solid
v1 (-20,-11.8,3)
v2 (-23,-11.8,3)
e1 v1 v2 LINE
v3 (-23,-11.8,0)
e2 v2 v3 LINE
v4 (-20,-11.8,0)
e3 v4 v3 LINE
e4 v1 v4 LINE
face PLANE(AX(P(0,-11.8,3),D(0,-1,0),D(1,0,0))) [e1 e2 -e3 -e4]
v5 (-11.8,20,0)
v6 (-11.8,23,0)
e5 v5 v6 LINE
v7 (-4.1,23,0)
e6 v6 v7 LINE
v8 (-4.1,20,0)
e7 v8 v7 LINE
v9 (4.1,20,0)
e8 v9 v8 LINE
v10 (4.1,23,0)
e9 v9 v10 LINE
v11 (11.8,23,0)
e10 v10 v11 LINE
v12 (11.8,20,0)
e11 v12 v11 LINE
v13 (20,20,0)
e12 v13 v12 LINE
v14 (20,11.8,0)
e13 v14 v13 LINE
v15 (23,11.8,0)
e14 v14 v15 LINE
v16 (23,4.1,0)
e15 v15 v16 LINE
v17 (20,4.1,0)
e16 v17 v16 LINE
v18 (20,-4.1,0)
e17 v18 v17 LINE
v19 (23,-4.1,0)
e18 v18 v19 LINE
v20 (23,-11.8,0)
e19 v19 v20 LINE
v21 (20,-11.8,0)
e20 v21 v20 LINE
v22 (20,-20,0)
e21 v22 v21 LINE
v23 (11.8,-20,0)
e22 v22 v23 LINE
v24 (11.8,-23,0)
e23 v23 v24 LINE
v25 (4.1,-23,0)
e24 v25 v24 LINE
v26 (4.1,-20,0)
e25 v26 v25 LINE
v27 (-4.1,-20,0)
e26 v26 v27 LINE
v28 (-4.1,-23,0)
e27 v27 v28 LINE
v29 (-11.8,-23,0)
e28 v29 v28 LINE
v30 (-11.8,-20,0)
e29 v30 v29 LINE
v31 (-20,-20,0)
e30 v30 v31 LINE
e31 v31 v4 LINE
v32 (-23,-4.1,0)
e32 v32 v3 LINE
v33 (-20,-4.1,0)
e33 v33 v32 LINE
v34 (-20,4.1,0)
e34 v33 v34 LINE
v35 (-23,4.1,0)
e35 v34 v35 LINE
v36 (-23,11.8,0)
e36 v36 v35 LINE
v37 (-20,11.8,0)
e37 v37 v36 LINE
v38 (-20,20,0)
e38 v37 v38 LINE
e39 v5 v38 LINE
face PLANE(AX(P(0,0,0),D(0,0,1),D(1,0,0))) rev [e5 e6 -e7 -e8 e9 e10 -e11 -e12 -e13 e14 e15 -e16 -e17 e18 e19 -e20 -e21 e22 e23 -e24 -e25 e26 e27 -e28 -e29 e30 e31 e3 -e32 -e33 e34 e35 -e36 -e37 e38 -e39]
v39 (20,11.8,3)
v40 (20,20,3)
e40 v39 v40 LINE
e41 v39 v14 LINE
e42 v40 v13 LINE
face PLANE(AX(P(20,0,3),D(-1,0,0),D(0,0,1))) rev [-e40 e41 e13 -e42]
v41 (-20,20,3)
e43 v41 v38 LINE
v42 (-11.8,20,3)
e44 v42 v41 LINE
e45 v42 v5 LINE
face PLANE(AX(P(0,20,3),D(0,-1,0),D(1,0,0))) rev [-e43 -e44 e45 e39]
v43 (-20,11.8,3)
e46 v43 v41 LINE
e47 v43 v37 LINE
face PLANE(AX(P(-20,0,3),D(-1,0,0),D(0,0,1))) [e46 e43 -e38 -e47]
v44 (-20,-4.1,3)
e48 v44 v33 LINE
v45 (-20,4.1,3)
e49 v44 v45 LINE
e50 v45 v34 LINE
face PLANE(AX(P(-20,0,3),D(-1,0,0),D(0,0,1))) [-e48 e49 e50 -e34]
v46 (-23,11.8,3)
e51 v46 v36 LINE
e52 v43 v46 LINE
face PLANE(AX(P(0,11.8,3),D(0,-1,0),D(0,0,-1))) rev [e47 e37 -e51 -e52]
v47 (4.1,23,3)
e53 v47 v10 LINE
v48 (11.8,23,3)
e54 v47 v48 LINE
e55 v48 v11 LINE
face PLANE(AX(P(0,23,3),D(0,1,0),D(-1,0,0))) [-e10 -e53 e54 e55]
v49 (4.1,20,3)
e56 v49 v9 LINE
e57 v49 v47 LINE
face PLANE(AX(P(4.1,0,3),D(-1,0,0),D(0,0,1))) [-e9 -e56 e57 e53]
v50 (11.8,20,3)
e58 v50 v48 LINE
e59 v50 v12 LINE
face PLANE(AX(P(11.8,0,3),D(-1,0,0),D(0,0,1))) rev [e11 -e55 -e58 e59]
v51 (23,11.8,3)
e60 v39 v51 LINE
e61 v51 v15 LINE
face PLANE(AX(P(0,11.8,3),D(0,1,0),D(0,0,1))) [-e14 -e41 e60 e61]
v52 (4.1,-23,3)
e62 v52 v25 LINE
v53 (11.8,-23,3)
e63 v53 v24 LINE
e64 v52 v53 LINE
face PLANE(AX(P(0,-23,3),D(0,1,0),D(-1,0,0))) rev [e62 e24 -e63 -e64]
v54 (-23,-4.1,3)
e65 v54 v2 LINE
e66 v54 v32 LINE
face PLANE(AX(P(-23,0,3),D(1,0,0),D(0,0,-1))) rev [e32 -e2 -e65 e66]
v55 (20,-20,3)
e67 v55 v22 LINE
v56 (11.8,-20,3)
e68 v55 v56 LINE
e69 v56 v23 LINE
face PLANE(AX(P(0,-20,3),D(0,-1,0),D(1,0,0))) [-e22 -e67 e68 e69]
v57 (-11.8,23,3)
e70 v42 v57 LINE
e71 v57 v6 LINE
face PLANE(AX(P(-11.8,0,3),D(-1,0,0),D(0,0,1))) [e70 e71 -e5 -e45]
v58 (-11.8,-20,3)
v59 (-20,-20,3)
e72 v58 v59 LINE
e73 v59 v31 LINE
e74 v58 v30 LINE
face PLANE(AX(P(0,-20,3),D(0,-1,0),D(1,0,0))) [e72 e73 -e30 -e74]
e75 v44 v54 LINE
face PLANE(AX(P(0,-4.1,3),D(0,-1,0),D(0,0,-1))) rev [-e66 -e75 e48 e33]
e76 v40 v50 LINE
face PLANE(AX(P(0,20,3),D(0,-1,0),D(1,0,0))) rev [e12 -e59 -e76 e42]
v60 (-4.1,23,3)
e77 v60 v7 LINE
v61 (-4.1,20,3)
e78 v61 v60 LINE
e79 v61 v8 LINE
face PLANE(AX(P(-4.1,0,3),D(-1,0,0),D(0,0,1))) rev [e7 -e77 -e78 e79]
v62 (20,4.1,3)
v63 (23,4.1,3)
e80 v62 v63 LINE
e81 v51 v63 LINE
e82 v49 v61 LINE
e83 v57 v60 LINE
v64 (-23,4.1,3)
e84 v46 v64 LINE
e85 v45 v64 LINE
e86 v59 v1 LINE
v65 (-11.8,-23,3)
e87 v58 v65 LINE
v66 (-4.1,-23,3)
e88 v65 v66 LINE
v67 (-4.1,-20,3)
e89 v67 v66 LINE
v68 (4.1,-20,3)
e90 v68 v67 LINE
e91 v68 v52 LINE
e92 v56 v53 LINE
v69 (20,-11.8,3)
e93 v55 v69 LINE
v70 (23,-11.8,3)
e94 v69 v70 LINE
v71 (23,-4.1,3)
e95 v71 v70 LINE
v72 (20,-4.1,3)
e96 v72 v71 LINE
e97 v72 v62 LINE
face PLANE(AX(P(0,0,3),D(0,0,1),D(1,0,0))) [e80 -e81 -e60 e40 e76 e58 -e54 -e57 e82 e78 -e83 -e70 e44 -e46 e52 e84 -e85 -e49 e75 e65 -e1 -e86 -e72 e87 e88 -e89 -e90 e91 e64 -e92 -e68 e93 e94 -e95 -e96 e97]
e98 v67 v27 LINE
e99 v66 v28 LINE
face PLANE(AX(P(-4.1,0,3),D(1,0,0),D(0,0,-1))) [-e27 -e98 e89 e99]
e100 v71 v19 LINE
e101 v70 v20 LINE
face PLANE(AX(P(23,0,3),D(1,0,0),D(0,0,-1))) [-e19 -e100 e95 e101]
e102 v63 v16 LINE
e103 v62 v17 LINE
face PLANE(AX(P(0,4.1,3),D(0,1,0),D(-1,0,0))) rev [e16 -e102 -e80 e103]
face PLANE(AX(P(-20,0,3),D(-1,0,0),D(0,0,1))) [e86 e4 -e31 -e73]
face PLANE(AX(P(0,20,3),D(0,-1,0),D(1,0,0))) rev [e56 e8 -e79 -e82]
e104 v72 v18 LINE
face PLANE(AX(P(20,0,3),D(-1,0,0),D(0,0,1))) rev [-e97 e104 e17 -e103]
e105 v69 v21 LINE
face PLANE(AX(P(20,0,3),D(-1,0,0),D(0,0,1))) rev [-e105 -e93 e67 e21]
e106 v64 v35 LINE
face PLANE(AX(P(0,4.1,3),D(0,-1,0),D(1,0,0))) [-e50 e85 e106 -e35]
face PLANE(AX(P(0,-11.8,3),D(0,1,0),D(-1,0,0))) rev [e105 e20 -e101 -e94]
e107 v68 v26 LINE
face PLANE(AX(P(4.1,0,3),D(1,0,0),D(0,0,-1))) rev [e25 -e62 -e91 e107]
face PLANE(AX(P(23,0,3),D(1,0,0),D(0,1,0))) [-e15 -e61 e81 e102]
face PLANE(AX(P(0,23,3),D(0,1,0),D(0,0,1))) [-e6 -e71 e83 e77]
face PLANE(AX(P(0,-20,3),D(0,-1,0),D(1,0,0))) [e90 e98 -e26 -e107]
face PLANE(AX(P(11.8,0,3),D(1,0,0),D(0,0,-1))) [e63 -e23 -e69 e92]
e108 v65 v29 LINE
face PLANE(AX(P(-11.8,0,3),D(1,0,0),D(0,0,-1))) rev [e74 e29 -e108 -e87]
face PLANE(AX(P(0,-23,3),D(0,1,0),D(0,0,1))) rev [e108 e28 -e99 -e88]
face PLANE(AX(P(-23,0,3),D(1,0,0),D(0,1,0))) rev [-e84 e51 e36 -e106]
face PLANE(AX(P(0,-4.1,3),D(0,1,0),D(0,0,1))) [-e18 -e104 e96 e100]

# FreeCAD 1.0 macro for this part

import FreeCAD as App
import Part
import Sketcher
from FreeCAD import Vector
Q = App.Units.Quantity

doc = App.newDocument("Part")
body = doc.addObject("PartDesign::Body", "Body")

sketch1 = body.newObject("Sketcher::SketchObject", "Sketch")
sketch1.AttachmentSupport = (doc.getObject("XY_Plane"), [""])
sketch1.MapMode = "FlatFace"
sketch1.addGeometry([
    Part.LineSegment(Vector(-23, -4.1, 0), Vector(-23, -11.8, 0)),
    Part.LineSegment(Vector(-23, -11.8, 0), Vector(-20, -11.8, 0)),
    Part.LineSegment(Vector(-20, -11.8, 0), Vector(-20, -20, 0)),
    Part.LineSegment(Vector(-20, -20, 0), Vector(-11.8, -20, 0)),
    Part.LineSegment(Vector(-11.8, -20, 0), Vector(-11.8, -23, 0)),
    Part.LineSegment(Vector(-11.8, -23, 0), Vector(-4.1, -23, 0)),
    Part.LineSegment(Vector(-4.1, -23, 0), Vector(-4.1, -20, 0)),
    Part.LineSegment(Vector(-4.1, -20, 0), Vector(4.1, -20, 0)),
    Part.LineSegment(Vector(4.1, -20, 0), Vector(4.1, -23, 0)),
    Part.LineSegment(Vector(4.1, -23, 0), Vector(11.8, -23, 0)),
    Part.LineSegment(Vector(11.8, -23, 0), Vector(11.8, -20, 0)),
    Part.LineSegment(Vector(11.8, -20, 0), Vector(20, -20, 0)),
    Part.LineSegment(Vector(20, -20, 0), Vector(20, -11.8, 0)),
    Part.LineSegment(Vector(20, -11.8, 0), Vector(23, -11.8, 0)),
    Part.LineSegment(Vector(23, -11.8, 0), Vector(23, -4.1, 0)),
    Part.LineSegment(Vector(23, -4.1, 0), Vector(20, -4.1, 0)),
    Part.LineSegment(Vector(20, -4.1, 0), Vector(20, 4.1, 0)),
    Part.LineSegment(Vector(20, 4.1, 0), Vector(23, 4.1, 0)),
    Part.LineSegment(Vector(23, 4.1, 0), Vector(23, 11.8, 0)),
    Part.LineSegment(Vector(23, 11.8, 0), Vector(20, 11.8, 0)),
    Part.LineSegment(Vector(20, 11.8, 0), Vector(20, 20, 0)),
    Part.LineSegment(Vector(20, 20, 0), Vector(11.8, 20, 0)),
    Part.LineSegment(Vector(11.8, 20, 0), Vector(11.8, 23, 0)),
    Part.LineSegment(Vector(11.8, 23, 0), Vector(4.1, 23, 0)),
    Part.LineSegment(Vector(4.1, 23, 0), Vector(4.1, 20, 0)),
    Part.LineSegment(Vector(4.1, 20, 0), Vector(-4.1, 20, 0)),
    Part.LineSegment(Vector(-4.1, 20, 0), Vector(-4.1, 23, 0)),
    Part.LineSegment(Vector(-4.1, 23, 0), Vector(-11.8, 23, 0)),
    Part.LineSegment(Vector(-11.8, 23, 0), Vector(-11.8, 20, 0)),
    Part.LineSegment(Vector(-11.8, 20, 0), Vector(-20, 20, 0)),
    Part.LineSegment(Vector(-20, 20, 0), Vector(-20, 11.8, 0)),
    Part.LineSegment(Vector(-20, 11.8, 0), Vector(-23, 11.8, 0)),
    Part.LineSegment(Vector(-23, 11.8, 0), Vector(-23, 4.1, 0)),
    Part.LineSegment(Vector(-23, 4.1, 0), Vector(-20, 4.1, 0)),
    Part.LineSegment(Vector(-20, 4.1, 0), Vector(-20, -4.1, 0)),
    Part.LineSegment(Vector(-20, -4.1, 0), Vector(-23, -4.1, 0)),
], False)
sketch1.addConstraint([
    Sketcher.Constraint("Coincident", 0, 2, 1, 1),
    Sketcher.Constraint("Coincident", 1, 2, 2, 1),
    Sketcher.Constraint("Coincident", 2, 2, 3, 1),
    Sketcher.Constraint("Coincident", 3, 2, 4, 1),
    Sketcher.Constraint("Coincident", 4, 2, 5, 1),
    Sketcher.Constraint("Coincident", 5, 2, 6, 1),
    Sketcher.Constraint("Coincident", 6, 2, 7, 1),
    Sketcher.Constraint("Coincident", 7, 2, 8, 1),
    Sketcher.Constraint("Coincident", 8, 2, 9, 1),
    Sketcher.Constraint("Coincident", 9, 2, 10, 1),
    Sketcher.Constraint("Coincident", 10, 2, 11, 1),
    Sketcher.Constraint("Coincident", 11, 2, 12, 1),
    Sketcher.Constraint("Coincident", 12, 2, 13, 1),
    Sketcher.Constraint("Coincident", 13, 2, 14, 1),
    Sketcher.Constraint("Coincident", 14, 2, 15, 1),
    Sketcher.Constraint("Coincident", 15, 2, 16, 1),
    Sketcher.Constraint("Coincident", 16, 2, 17, 1),
    Sketcher.Constraint("Coincident", 17, 2, 18, 1),
    Sketcher.Constraint("Coincident", 18, 2, 19, 1),
    Sketcher.Constraint("Coincident", 19, 2, 20, 1),
    Sketcher.Constraint("Coincident", 20, 2, 21, 1),
    Sketcher.Constraint("Coincident", 21, 2, 22, 1),
    Sketcher.Constraint("Coincident", 22, 2, 23, 1),
    Sketcher.Constraint("Coincident", 23, 2, 24, 1),
    Sketcher.Constraint("Coincident", 24, 2, 25, 1),
    Sketcher.Constraint("Coincident", 25, 2, 26, 1),
    Sketcher.Constraint("Coincident", 26, 2, 27, 1),
    Sketcher.Constraint("Coincident", 27, 2, 28, 1),
    Sketcher.Constraint("Coincident", 28, 2, 29, 1),
    Sketcher.Constraint("Coincident", 29, 2, 30, 1),
    Sketcher.Constraint("Coincident", 30, 2, 31, 1),
    Sketcher.Constraint("Coincident", 31, 2, 32, 1),
    Sketcher.Constraint("Coincident", 32, 2, 33, 1),
    Sketcher.Constraint("Coincident", 33, 2, 34, 1),
    Sketcher.Constraint("Coincident", 34, 2, 35, 1),
    Sketcher.Constraint("Coincident", 35, 2, 0, 1),
    Sketcher.Constraint("Vertical", 0),
    Sketcher.Constraint("Horizontal", 1),
    Sketcher.Constraint("Vertical", 2),
    Sketcher.Constraint("Horizontal", 3),
    Sketcher.Constraint("Vertical", 4),
    Sketcher.Constraint("Horizontal", 5),
    Sketcher.Constraint("Vertical", 6),
    Sketcher.Constraint("Horizontal", 7),
    Sketcher.Constraint("Vertical", 8),
    Sketcher.Constraint("Horizontal", 9),
    Sketcher.Constraint("Vertical", 10),
    Sketcher.Constraint("Horizontal", 11),
    Sketcher.Constraint("Vertical", 12),
    Sketcher.Constraint("Horizontal", 13),
    Sketcher.Constraint("Vertical", 14),
    Sketcher.Constraint("Horizontal", 15),
    Sketcher.Constraint("Vertical", 16),
    Sketcher.Constraint("Horizontal", 17),
    Sketcher.Constraint("Vertical", 18),
    Sketcher.Constraint("Horizontal", 19),
    Sketcher.Constraint("Vertical", 20),
    Sketcher.Constraint("Horizontal", 21),
    Sketcher.Constraint("Vertical", 22),
    Sketcher.Constraint("Horizontal", 23),
    Sketcher.Constraint("Vertical", 24),
    Sketcher.Constraint("Horizontal", 25),
    Sketcher.Constraint("Vertical", 26),
    Sketcher.Constraint("Horizontal", 27),
    Sketcher.Constraint("Vertical", 28),
    Sketcher.Constraint("Horizontal", 29),
    Sketcher.Constraint("Vertical", 30),
    Sketcher.Constraint("Horizontal", 31),
    Sketcher.Constraint("Vertical", 32),
    Sketcher.Constraint("Horizontal", 33),
    Sketcher.Constraint("Vertical", 34),
    Sketcher.Constraint("Horizontal", 35),
    Sketcher.Constraint("Symmetric", 0, 2, 18, 2, -1, 1),
    Sketcher.Constraint("Symmetric", 2, 2, 20, 2, -1, 1),
    Sketcher.Constraint("Symmetric", 4, 2, 22, 2, -1, 1),
    Sketcher.Constraint("Symmetric", 6, 2, 24, 2, -1, 1),
    Sketcher.Constraint("Symmetric", 8, 2, 26, 2, -1, 1),
    Sketcher.Constraint("Symmetric", 10, 2, 28, 2, -1, 1),
    Sketcher.Constraint("Symmetric", 12, 2, 30, 2, -1, 1),
    Sketcher.Constraint("Symmetric", 14, 2, 32, 2, -1, 1),
    Sketcher.Constraint("Symmetric", 16, 2, 34, 2, -1, 1),
    Sketcher.Constraint("Symmetric", 5, 2, 8, 2, -2),
    Sketcher.Constraint("Symmetric", 3, 2, 10, 2, -2),
    Sketcher.Constraint("Symmetric", 1, 2, 12, 2, -2),
    Sketcher.Constraint("Symmetric", 17, 2, 32, 2, -2),
    Sketcher.Constraint("Horizontal", 3, 2, 6, 2),
    Sketcher.Constraint("Vertical", 12, 2, 15, 2),
    Sketcher.Constraint("Equal", 3, 7),
    Sketcher.Constraint("Equal", 27, 0),
    Sketcher.Constraint("Equal", 29, 2),
    Sketcher.Constraint("Equal", 35, 4),
    Sketcher.Constraint("Equal", 12, 16),
    Sketcher.Constraint("DistanceX", 1, 1, 1, 2, Q("3 mm")),
    Sketcher.Constraint("DistanceX", 3, 1, 3, 2, Q("8.2 mm")),
    Sketcher.Constraint("DistanceX", 5, 1, 5, 2, Q("7.7 mm")),
])
pad1 = body.newObject("PartDesign::Pad", "Pad")
pad1.Profile = sketch1
pad1.Length = 3

doc.recompute()
